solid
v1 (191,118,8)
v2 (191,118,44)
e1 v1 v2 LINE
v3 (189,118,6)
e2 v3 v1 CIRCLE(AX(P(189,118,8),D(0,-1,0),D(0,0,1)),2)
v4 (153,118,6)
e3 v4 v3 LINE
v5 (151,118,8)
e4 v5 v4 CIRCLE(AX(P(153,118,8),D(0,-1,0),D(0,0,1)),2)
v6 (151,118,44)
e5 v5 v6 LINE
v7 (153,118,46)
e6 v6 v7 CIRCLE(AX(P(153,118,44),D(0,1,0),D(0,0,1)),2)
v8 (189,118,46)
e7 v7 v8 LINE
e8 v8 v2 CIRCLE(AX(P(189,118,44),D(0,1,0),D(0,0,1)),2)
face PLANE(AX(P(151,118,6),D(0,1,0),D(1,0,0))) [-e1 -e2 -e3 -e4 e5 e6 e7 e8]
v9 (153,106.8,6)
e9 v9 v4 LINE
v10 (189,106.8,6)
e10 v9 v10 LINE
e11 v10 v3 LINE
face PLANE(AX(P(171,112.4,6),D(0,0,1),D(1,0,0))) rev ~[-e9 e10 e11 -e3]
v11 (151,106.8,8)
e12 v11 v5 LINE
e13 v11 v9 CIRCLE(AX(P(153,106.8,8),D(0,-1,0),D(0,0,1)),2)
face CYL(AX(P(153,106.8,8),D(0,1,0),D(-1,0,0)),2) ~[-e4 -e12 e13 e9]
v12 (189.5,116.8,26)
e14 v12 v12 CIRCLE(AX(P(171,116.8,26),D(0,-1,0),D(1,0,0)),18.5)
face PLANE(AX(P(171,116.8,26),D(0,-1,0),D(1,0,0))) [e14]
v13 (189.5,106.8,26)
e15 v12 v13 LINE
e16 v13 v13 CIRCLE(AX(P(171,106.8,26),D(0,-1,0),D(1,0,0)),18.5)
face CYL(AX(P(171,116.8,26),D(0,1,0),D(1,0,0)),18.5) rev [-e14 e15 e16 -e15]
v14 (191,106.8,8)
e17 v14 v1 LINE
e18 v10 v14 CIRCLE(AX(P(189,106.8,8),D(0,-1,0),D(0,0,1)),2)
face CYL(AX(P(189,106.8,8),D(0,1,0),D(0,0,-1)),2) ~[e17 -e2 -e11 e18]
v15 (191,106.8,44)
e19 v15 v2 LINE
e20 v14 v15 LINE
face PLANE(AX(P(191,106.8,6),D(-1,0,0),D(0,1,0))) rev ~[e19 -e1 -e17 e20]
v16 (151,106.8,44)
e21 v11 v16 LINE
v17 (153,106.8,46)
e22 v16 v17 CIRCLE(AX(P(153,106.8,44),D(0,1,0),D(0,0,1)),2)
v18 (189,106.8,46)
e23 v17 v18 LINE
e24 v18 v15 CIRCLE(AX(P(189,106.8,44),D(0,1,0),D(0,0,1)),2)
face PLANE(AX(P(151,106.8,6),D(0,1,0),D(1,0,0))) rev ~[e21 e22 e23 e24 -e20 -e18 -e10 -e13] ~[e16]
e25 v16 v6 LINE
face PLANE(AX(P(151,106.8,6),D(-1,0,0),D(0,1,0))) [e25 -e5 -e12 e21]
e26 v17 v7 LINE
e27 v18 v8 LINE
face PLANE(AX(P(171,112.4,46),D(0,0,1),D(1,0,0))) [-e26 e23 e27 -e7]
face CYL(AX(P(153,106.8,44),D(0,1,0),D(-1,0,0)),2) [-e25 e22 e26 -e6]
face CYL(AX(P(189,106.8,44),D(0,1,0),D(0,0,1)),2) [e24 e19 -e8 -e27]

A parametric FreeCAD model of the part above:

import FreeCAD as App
import Part
import Sketcher

V = App.Vector
Q = App.Units.Quantity


def edges_at(feature, points):
    """Names of the edges that pass closest to the given points."""
    edges = feature.Shape.Edges
    near = lambda p: min(range(len(edges)), key=lambda i: edges[i].distToShape(Part.Vertex(*p))[0])
    return sorted({f"Edge{near(p) + 1}" for p in points})


def add_polygon(sketch, points):
    """Adds a closed chain of lines whose ends are joined by coincident constraints."""
    first, n = sketch.GeometryCount, len(points)
    for a, b in zip(points, points[1:] + points[:1]):
        sketch.addGeometry(Part.LineSegment(App.Vector(*a, 0), App.Vector(*b, 0)), False)
    for i in range(n):
        sketch.addConstraint(Sketcher.Constraint("Coincident", first + i, 2, first + (i + 1) % n, 1))

doc = App.newDocument("Part")
params = doc.addObject("Spreadsheet::Sheet", "Params")
for row, (alias, value) in enumerate([
    ("sketch1_diameter", "37 mm"),
    ("pad1_length", "10 mm"),
    ("sketch2_width", "40 mm"),
    ("sketch2_height", "11.2 mm"),
    ("pad2_length", "40 mm"),
    ("fillet_radius", "2 mm"),
], start=1):
    params.set(f"A{row}", alias)
    params.set(f"B{row}", "=" + value)
    params.setAlias(f"B{row}", alias)

body = doc.addObject("PartDesign::Body", "Body")

# Sketch on XZ plane
sketch1 = body.newObject("Sketcher::SketchObject", "Sketch")
sketch1.AttachmentSupport = (doc.getObject("XZ_Plane"), [""])
sketch1.MapMode = "FlatFace"
sketch1.AttachmentOffset = App.Placement(V(0, 0, -10), App.Rotation())
sketch1.addGeometry(Part.Circle(V(20, 20, 0), V(0, 0, 1), 18), False)
sketch1.addConstraint([
    Sketcher.Constraint("Diameter", 0, Q("37 mm")),
    Sketcher.Constraint("DistanceX", -1, 1, 0, 3, Q("20 mm")),
    Sketcher.Constraint("DistanceY", -1, 1, 0, 3, Q("20 mm")),
])
sketch1.setExpression("Constraints[0]", "Params.sketch1_diameter")
pad1 = body.newObject("PartDesign::Pad", "Pad")
pad1.Profile = sketch1
pad1.setExpression("Length", "Params.pad1_length")
body2 = doc.addObject("PartDesign::Body", "Body001")

# Sketch on XY plane
sketch2 = body2.newObject("Sketcher::SketchObject", "Sketch001")
sketch2.AttachmentSupport = (doc.getObject("XY_Plane001"), [""])
sketch2.MapMode = "FlatFace"
add_polygon(sketch2, [(0, 11), (0, 0), (40, 0), (40, 11)])  # lines 0-3
sketch2.addConstraint([
    Sketcher.Constraint("Vertical", 0),
    Sketcher.Constraint("Horizontal", 1),
    Sketcher.Constraint("Vertical", 2),
    Sketcher.Constraint("Horizontal", 3),
    Sketcher.Constraint("Coincident", 0, 2, -1, 1),
    Sketcher.Constraint("DistanceX", 1, 1, 1, 2, Q("40 mm")),
    Sketcher.Constraint("DistanceY", 0, 2, 0, 1, Q("11.2 mm")),
])
sketch2.setExpression("Constraints[9]", "Params.sketch2_width")
sketch2.setExpression("Constraints[10]", "Params.sketch2_height")
pad2 = body2.newObject("PartDesign::Pad", "Pad001")
pad2.Profile = sketch2
pad2.setExpression("Length", "Params.pad2_length")
doc.recompute()

boolean = body2.newObject("PartDesign::Boolean", "Boolean")
boolean.Type = "Cut"
boolean.addObjects([body])
doc.recompute()

fillet = body2.newObject("PartDesign::Fillet", "Fillet")
fillet.Base = (boolean, edges_at(boolean, [
    (0, 5.6, 40),
    (0, 5.6, 0),
    (40, 5.6, 40),
    (40, 5.6, 0),
]))
fillet.setExpression("Radius", "Params.fillet_radius")
body3 = doc.addObject("PartDesign::Body", "Body002")
doc.recompute()

body2.Placement = App.Placement(V(151, 106.8, 6), App.Rotation(V(0, 0, 1), 0))
boolean2 = body3.newObject("PartDesign::Boolean", "Boolean001")
boolean2.Type = "Fuse"
boolean2.addObjects([body2])

doc.recompute()
